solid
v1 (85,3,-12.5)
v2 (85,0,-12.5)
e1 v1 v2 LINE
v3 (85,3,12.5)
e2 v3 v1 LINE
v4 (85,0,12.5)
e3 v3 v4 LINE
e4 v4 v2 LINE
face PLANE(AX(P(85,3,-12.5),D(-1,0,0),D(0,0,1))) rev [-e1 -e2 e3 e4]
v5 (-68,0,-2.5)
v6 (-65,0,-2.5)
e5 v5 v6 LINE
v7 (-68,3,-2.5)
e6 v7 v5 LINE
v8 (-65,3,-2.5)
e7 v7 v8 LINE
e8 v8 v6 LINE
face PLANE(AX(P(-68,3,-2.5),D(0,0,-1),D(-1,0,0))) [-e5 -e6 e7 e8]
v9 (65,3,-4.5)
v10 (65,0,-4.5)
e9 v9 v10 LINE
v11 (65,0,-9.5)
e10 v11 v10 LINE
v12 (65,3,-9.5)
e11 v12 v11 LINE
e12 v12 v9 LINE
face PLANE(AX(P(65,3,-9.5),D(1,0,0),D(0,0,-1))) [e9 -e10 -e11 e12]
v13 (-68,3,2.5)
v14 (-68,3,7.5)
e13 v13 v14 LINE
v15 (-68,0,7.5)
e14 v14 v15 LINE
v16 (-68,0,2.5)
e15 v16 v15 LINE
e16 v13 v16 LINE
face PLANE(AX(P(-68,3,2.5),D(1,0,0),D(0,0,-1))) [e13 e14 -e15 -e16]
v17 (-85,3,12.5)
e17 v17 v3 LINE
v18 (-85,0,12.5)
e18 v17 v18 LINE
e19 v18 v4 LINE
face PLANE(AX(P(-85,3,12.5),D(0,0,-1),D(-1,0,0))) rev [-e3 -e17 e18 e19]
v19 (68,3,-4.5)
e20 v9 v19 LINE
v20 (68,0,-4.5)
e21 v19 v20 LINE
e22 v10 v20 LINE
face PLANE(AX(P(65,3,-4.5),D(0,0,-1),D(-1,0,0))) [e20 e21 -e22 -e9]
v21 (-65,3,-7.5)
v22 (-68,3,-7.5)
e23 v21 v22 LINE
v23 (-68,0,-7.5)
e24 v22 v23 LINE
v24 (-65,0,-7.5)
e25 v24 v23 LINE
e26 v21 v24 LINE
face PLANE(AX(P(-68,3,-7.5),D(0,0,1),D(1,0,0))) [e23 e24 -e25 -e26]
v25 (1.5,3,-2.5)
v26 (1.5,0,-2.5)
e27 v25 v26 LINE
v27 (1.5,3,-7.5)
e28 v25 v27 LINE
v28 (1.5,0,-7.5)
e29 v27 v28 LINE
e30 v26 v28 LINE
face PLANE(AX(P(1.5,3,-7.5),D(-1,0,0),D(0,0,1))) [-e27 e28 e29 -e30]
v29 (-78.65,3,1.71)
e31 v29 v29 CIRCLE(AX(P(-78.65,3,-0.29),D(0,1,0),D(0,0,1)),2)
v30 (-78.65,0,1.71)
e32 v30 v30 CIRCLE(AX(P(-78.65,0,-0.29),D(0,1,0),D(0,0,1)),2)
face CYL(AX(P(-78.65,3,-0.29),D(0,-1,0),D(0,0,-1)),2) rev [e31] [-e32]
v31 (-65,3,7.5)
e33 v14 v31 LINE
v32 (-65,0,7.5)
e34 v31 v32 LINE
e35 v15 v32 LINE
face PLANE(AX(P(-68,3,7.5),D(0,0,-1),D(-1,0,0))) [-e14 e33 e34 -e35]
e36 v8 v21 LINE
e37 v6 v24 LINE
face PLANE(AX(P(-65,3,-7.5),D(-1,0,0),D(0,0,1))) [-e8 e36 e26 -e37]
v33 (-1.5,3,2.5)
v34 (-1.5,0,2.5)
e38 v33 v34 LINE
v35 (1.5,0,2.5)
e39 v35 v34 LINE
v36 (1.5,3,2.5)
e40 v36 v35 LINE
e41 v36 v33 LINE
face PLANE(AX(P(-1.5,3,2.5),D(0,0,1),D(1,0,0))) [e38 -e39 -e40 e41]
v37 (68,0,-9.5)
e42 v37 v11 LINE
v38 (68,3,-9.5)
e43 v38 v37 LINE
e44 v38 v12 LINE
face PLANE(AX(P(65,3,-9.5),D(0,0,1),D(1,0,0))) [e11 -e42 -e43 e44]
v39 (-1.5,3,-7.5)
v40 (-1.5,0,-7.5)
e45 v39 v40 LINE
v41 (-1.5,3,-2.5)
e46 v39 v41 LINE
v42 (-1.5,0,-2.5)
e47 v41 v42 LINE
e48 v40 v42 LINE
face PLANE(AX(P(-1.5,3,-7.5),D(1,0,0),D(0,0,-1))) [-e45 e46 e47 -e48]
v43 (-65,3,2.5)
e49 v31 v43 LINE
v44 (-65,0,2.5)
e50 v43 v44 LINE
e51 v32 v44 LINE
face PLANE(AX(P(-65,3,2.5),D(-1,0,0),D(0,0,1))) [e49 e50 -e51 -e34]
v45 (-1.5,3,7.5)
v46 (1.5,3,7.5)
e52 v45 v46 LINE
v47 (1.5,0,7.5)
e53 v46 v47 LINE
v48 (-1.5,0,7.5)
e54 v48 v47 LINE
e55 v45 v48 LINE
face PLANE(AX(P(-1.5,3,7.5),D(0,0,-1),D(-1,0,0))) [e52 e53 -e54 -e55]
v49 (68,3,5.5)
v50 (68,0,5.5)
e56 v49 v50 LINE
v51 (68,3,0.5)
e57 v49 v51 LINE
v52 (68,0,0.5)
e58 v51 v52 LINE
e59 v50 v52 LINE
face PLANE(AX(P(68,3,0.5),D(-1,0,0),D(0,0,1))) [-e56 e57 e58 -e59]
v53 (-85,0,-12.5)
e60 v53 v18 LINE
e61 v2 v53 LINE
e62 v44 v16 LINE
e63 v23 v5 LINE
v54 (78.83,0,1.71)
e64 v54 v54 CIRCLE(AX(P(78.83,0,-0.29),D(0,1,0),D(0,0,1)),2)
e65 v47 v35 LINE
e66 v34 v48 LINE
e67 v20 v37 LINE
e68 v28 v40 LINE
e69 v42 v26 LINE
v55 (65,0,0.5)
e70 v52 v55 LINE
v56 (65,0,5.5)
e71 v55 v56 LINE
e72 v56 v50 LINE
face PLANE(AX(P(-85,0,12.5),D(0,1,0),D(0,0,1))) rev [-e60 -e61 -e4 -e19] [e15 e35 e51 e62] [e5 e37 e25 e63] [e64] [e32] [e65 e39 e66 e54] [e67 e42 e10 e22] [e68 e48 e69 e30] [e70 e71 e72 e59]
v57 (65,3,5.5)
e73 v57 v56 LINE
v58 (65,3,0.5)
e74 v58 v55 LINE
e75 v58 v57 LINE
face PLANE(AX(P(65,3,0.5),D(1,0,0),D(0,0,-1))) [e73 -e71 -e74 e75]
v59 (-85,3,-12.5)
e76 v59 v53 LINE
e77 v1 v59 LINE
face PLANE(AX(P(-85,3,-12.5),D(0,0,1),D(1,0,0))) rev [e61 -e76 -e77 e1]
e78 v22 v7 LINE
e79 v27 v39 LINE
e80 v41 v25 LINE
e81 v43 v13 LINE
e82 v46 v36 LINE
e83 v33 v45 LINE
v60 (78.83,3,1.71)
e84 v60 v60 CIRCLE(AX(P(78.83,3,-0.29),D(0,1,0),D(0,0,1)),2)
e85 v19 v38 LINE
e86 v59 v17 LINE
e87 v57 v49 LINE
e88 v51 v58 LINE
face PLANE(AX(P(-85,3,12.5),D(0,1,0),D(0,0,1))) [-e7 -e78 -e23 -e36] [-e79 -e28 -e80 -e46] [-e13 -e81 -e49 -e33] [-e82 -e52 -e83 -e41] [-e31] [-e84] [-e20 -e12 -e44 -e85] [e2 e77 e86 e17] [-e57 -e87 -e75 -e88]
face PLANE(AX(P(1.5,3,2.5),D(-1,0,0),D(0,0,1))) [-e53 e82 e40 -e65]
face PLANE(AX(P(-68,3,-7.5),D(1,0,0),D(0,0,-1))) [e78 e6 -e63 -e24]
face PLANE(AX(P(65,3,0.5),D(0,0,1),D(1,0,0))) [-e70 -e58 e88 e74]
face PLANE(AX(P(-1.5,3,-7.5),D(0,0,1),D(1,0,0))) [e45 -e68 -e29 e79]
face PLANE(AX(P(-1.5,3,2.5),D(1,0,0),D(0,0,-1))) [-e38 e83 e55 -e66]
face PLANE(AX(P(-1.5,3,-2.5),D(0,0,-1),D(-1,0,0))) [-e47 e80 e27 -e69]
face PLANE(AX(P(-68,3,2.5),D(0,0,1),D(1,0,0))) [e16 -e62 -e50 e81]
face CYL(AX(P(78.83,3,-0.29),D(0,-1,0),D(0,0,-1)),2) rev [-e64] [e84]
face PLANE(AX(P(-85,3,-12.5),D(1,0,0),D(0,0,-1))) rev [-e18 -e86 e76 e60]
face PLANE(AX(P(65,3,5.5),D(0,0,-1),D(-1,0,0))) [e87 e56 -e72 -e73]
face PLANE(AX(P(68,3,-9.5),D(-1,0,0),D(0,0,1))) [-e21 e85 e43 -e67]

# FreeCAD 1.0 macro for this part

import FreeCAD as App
import Part
import Sketcher

V = App.Vector
Q = App.Units.Quantity

doc = App.newDocument("Part")
body = doc.addObject("PartDesign::Body", "Body")

# Sketch on XZ plane
sketch1 = body.newObject("Sketcher::SketchObject", "Sketch")
sketch1.AttachmentSupport = (doc.getObject("XZ_Plane"), [""])
sketch1.MapMode = "FlatFace"
sketch1.addGeometry(Part.LineSegment(V(-85, -12.5, 0), V(-85, 12.5, 0)), False)
sketch1.addGeometry(Part.LineSegment(V(-85, 12.5, 0), V(85, 12.5, 0)), False)
sketch1.addGeometry(Part.LineSegment(V(85, 12.5, 0), V(85, -12.5, 0)), False)
sketch1.addGeometry(Part.LineSegment(V(85, -12.5, 0), V(-85, -12.5, 0)), False)
sketch1.addConstraint(Sketcher.Constraint("Coincident", 0, 2, 1, 1))
sketch1.addConstraint(Sketcher.Constraint("Coincident", 1, 2, 2, 1))
sketch1.addConstraint(Sketcher.Constraint("Coincident", 2, 2, 3, 1))
sketch1.addConstraint(Sketcher.Constraint("Coincident", 3, 2, 0, 1))
sketch1.addConstraint(Sketcher.Constraint("Vertical", 0))
sketch1.addConstraint(Sketcher.Constraint("Horizontal", 1))
sketch1.addConstraint(Sketcher.Constraint("Vertical", 2))
sketch1.addConstraint(Sketcher.Constraint("Horizontal", 3))
sketch1.addConstraint(Sketcher.Constraint("Symmetric", 0, 2, 2, 2, -1, 1))
sketch1.addConstraint(Sketcher.Constraint("DistanceX", 1, 1, 1, 2, Q("170 mm")))
sketch1.addConstraint(Sketcher.Constraint("DistanceY", 0, 1, 0, 2, Q("25 mm")))
pad1 = body.newObject("PartDesign::Pad", "Pad")
pad1.Profile = sketch1
pad1.Length = 3
pad1.Reversed = True

# Sketch on XZ plane
sketch2 = body.newObject("Sketcher::SketchObject", "Sketch001")
sketch2.AttachmentSupport = (doc.getObject("XZ_Plane"), [""])
sketch2.MapMode = "FlatFace"
sketch2.addGeometry(Part.LineSegment(V(-1.5, -7.5, 0), V(-1.5, -2.5, 0)), False)
sketch2.addGeometry(Part.LineSegment(V(-1.5, -2.5, 0), V(1.5, -2.5, 0)), False)
sketch2.addGeometry(Part.LineSegment(V(1.5, -2.5, 0), V(1.5, -7.5, 0)), False)
sketch2.addGeometry(Part.LineSegment(V(1.5, -7.5, 0), V(-1.5, -7.5, 0)), False)
sketch2.addGeometry(Part.LineSegment(V(-1.5, 2.5, 0), V(-1.5, 7.5, 0)), False)
sketch2.addGeometry(Part.LineSegment(V(-1.5, 7.5, 0), V(1.5, 7.5, 0)), False)
sketch2.addGeometry(Part.LineSegment(V(1.5, 7.5, 0), V(1.5, 2.5, 0)), False)
sketch2.addGeometry(Part.LineSegment(V(1.5, 2.5, 0), V(-1.5, 2.5, 0)), False)
sketch2.addGeometry(Part.LineSegment(V(-68, -7.5, 0), V(-68, -2.5, 0)), False)
sketch2.addGeometry(Part.LineSegment(V(-68, -2.5, 0), V(-65, -2.5, 0)), False)
sketch2.addGeometry(Part.LineSegment(V(-65, -2.5, 0), V(-65, -7.5, 0)), False)
sketch2.addGeometry(Part.LineSegment(V(-65, -7.5, 0), V(-68, -7.5, 0)), False)
sketch2.addGeometry(Part.LineSegment(V(-68, 2.5, 0), V(-68, 7.5, 0)), False)
sketch2.addGeometry(Part.LineSegment(V(-68, 7.5, 0), V(-65, 7.5, 0)), False)
sketch2.addGeometry(Part.LineSegment(V(-65, 7.5, 0), V(-65, 2.5, 0)), False)
sketch2.addGeometry(Part.LineSegment(V(-65, 2.5, 0), V(-68, 2.5, 0)), False)
sketch2.addGeometry(Part.LineSegment(V(65, -9.5, 0), V(65, -4.5, 0)), False)
sketch2.addGeometry(Part.LineSegment(V(65, -4.5, 0), V(68, -4.5, 0)), False)
sketch2.addGeometry(Part.LineSegment(V(68, -4.5, 0), V(68, -9.5, 0)), False)
sketch2.addGeometry(Part.LineSegment(V(68, -9.5, 0), V(65, -9.5, 0)), False)
sketch2.addGeometry(Part.LineSegment(V(65, 0.5, 0), V(65, 5.5, 0)), False)
sketch2.addGeometry(Part.LineSegment(V(65, 5.5, 0), V(68, 5.5, 0)), False)
sketch2.addGeometry(Part.LineSegment(V(68, 5.5, 0), V(68, 0.5, 0)), False)
sketch2.addGeometry(Part.LineSegment(V(68, 0.5, 0), V(65, 0.5, 0)), False)
sketch2.addConstraint(Sketcher.Constraint("Coincident", 0, 2, 1, 1))
sketch2.addConstraint(Sketcher.Constraint("Coincident", 1, 2, 2, 1))
sketch2.addConstraint(Sketcher.Constraint("Coincident", 2, 2, 3, 1))
sketch2.addConstraint(Sketcher.Constraint("Coincident", 3, 2, 0, 1))
sketch2.addConstraint(Sketcher.Constraint("Coincident", 4, 2, 5, 1))
sketch2.addConstraint(Sketcher.Constraint("Coincident", 5, 2, 6, 1))
sketch2.addConstraint(Sketcher.Constraint("Coincident", 6, 2, 7, 1))
sketch2.addConstraint(Sketcher.Constraint("Coincident", 7, 2, 4, 1))
sketch2.addConstraint(Sketcher.Constraint("Coincident", 8, 2, 9, 1))
sketch2.addConstraint(Sketcher.Constraint("Coincident", 9, 2, 10, 1))
sketch2.addConstraint(Sketcher.Constraint("Coincident", 10, 2, 11, 1))
sketch2.addConstraint(Sketcher.Constraint("Coincident", 11, 2, 8, 1))
sketch2.addConstraint(Sketcher.Constraint("Coincident", 12, 2, 13, 1))
sketch2.addConstraint(Sketcher.Constraint("Coincident", 13, 2, 14, 1))
sketch2.addConstraint(Sketcher.Constraint("Coincident", 14, 2, 15, 1))
sketch2.addConstraint(Sketcher.Constraint("Coincident", 15, 2, 12, 1))
sketch2.addConstraint(Sketcher.Constraint("Coincident", 16, 2, 17, 1))
sketch2.addConstraint(Sketcher.Constraint("Coincident", 17, 2, 18, 1))
sketch2.addConstraint(Sketcher.Constraint("Coincident", 18, 2, 19, 1))
sketch2.addConstraint(Sketcher.Constraint("Coincident", 19, 2, 16, 1))
sketch2.addConstraint(Sketcher.Constraint("Coincident", 20, 2, 21, 1))
sketch2.addConstraint(Sketcher.Constraint("Coincident", 21, 2, 22, 1))
sketch2.addConstraint(Sketcher.Constraint("Coincident", 22, 2, 23, 1))
sketch2.addConstraint(Sketcher.Constraint("Coincident", 23, 2, 20, 1))
sketch2.addConstraint(Sketcher.Constraint("Vertical", 0))
sketch2.addConstraint(Sketcher.Constraint("Horizontal", 1))
sketch2.addConstraint(Sketcher.Constraint("Vertical", 2))
sketch2.addConstraint(Sketcher.Constraint("Horizontal", 3))
sketch2.addConstraint(Sketcher.Constraint("Vertical", 4))
sketch2.addConstraint(Sketcher.Constraint("Horizontal", 5))
sketch2.addConstraint(Sketcher.Constraint("Vertical", 6))
sketch2.addConstraint(Sketcher.Constraint("Horizontal", 7))
sketch2.addConstraint(Sketcher.Constraint("Vertical", 8))
sketch2.addConstraint(Sketcher.Constraint("Horizontal", 9))
sketch2.addConstraint(Sketcher.Constraint("Vertical", 10))
sketch2.addConstraint(Sketcher.Constraint("Horizontal", 11))
sketch2.addConstraint(Sketcher.Constraint("Vertical", 12))
sketch2.addConstraint(Sketcher.Constraint("Horizontal", 13))
sketch2.addConstraint(Sketcher.Constraint("Vertical", 14))
sketch2.addConstraint(Sketcher.Constraint("Horizontal", 15))
sketch2.addConstraint(Sketcher.Constraint("Vertical", 16))
sketch2.addConstraint(Sketcher.Constraint("Horizontal", 17))
sketch2.addConstraint(Sketcher.Constraint("Vertical", 18))
sketch2.addConstraint(Sketcher.Constraint("Horizontal", 19))
sketch2.addConstraint(Sketcher.Constraint("Vertical", 20))
sketch2.addConstraint(Sketcher.Constraint("Horizontal", 21))
sketch2.addConstraint(Sketcher.Constraint("Vertical", 22))
sketch2.addConstraint(Sketcher.Constraint("Horizontal", 23))
sketch2.addConstraint(Sketcher.Constraint("Symmetric", 2, 2, 4, 2, -1, 1))
sketch2.addConstraint(Sketcher.Constraint("Symmetric", 0, 2, 6, 2, -1, 1))
sketch2.addConstraint(Sketcher.Constraint("Symmetric", 11, 2, 12, 2, -1))
sketch2.addConstraint(Sketcher.Constraint("Symmetric", 9, 2, 14, 2, -1))
sketch2.addConstraint(Sketcher.Constraint("Horizontal", 1, 2, 8, 2))
sketch2.addConstraint(Sketcher.Constraint("Horizontal", 3, 2, 10, 2))
sketch2.addConstraint(Sketcher.Constraint("Vertical", 3, 2, 4, 2))
sketch2.addConstraint(Sketcher.Constraint("Vertical", 19, 2, 20, 2))
sketch2.addConstraint(Sketcher.Constraint("Vertical", 18, 2, 21, 2))
sketch2.addConstraint(Sketcher.Constraint("Equal", 7, 9))
sketch2.addConstraint(Sketcher.Constraint("Equal", 15, 17))
sketch2.addConstraint(Sketcher.Constraint("Equal", 14, 16))
sketch2.addConstraint(Sketcher.Constraint("Equal", 18, 20))
sketch2.addConstraint(Sketcher.Constraint("DistanceX", 1, 1, 1, 2, Q("3 mm")))
sketch2.addConstraint(Sketcher.Constraint("DistanceY", 0, 1, 0, 2, Q("5 mm")))
sketch2.addConstraint(Sketcher.Constraint("DistanceX", 8, 2, -1, 1, Q("68 mm")))
sketch2.addConstraint(Sketcher.Constraint("DistanceX", -1, 1, 16, 2, Q("65 mm")))
sketch2.addConstraint(Sketcher.Constraint("DistanceY", 0, 2, 4, 2, Q("10 mm")))
sketch2.addConstraint(Sketcher.Constraint("DistanceY", 16, 2, 1, 2, Q("2 mm")))
sketch2.addConstraint(Sketcher.Constraint("DistanceY", 16, 2, 20, 2, Q("10 mm")))
pocket1 = body.newObject("PartDesign::Pocket", "Pocket")
pocket1.Profile = sketch2
pocket1.Type = "ThroughAll"

# Sketch on XZ plane
sketch3 = body.newObject("Sketcher::SketchObject", "Sketch002")
sketch3.AttachmentSupport = (doc.getObject("XZ_Plane"), [""])
sketch3.MapMode = "FlatFace"
sketch3.addGeometry(Part.Circle(V(-78.65, -0.29, 0), V(0, 0, 1), 2), False)
sketch3.addGeometry(Part.Circle(V(78.83, -0.29, 0), V(0, 0, 1), 2), False)
sketch3.addConstraint(Sketcher.Constraint("Equal", 0, 1))
sketch3.addConstraint(Sketcher.Constraint("Horizontal", 0, 3, 1, 3))
sketch3.addConstraint(Sketcher.Constraint("Diameter", 0, Q("4 mm")))
sketch3.addConstraint(Sketcher.Constraint("DistanceX", 0, 3, -1, 1, Q("78.65 mm")))
sketch3.addConstraint(Sketcher.Constraint("DistanceY", 0, 3, -1, 1, Q("0.29 mm")))
sketch3.addConstraint(Sketcher.Constraint("DistanceX", -1, 1, 1, 3, Q("78.83 mm")))
pocket2 = body.newObject("PartDesign::Pocket", "Pocket001")
pocket2.Profile = sketch3
pocket2.Type = "ThroughAll"

doc.recompute()
